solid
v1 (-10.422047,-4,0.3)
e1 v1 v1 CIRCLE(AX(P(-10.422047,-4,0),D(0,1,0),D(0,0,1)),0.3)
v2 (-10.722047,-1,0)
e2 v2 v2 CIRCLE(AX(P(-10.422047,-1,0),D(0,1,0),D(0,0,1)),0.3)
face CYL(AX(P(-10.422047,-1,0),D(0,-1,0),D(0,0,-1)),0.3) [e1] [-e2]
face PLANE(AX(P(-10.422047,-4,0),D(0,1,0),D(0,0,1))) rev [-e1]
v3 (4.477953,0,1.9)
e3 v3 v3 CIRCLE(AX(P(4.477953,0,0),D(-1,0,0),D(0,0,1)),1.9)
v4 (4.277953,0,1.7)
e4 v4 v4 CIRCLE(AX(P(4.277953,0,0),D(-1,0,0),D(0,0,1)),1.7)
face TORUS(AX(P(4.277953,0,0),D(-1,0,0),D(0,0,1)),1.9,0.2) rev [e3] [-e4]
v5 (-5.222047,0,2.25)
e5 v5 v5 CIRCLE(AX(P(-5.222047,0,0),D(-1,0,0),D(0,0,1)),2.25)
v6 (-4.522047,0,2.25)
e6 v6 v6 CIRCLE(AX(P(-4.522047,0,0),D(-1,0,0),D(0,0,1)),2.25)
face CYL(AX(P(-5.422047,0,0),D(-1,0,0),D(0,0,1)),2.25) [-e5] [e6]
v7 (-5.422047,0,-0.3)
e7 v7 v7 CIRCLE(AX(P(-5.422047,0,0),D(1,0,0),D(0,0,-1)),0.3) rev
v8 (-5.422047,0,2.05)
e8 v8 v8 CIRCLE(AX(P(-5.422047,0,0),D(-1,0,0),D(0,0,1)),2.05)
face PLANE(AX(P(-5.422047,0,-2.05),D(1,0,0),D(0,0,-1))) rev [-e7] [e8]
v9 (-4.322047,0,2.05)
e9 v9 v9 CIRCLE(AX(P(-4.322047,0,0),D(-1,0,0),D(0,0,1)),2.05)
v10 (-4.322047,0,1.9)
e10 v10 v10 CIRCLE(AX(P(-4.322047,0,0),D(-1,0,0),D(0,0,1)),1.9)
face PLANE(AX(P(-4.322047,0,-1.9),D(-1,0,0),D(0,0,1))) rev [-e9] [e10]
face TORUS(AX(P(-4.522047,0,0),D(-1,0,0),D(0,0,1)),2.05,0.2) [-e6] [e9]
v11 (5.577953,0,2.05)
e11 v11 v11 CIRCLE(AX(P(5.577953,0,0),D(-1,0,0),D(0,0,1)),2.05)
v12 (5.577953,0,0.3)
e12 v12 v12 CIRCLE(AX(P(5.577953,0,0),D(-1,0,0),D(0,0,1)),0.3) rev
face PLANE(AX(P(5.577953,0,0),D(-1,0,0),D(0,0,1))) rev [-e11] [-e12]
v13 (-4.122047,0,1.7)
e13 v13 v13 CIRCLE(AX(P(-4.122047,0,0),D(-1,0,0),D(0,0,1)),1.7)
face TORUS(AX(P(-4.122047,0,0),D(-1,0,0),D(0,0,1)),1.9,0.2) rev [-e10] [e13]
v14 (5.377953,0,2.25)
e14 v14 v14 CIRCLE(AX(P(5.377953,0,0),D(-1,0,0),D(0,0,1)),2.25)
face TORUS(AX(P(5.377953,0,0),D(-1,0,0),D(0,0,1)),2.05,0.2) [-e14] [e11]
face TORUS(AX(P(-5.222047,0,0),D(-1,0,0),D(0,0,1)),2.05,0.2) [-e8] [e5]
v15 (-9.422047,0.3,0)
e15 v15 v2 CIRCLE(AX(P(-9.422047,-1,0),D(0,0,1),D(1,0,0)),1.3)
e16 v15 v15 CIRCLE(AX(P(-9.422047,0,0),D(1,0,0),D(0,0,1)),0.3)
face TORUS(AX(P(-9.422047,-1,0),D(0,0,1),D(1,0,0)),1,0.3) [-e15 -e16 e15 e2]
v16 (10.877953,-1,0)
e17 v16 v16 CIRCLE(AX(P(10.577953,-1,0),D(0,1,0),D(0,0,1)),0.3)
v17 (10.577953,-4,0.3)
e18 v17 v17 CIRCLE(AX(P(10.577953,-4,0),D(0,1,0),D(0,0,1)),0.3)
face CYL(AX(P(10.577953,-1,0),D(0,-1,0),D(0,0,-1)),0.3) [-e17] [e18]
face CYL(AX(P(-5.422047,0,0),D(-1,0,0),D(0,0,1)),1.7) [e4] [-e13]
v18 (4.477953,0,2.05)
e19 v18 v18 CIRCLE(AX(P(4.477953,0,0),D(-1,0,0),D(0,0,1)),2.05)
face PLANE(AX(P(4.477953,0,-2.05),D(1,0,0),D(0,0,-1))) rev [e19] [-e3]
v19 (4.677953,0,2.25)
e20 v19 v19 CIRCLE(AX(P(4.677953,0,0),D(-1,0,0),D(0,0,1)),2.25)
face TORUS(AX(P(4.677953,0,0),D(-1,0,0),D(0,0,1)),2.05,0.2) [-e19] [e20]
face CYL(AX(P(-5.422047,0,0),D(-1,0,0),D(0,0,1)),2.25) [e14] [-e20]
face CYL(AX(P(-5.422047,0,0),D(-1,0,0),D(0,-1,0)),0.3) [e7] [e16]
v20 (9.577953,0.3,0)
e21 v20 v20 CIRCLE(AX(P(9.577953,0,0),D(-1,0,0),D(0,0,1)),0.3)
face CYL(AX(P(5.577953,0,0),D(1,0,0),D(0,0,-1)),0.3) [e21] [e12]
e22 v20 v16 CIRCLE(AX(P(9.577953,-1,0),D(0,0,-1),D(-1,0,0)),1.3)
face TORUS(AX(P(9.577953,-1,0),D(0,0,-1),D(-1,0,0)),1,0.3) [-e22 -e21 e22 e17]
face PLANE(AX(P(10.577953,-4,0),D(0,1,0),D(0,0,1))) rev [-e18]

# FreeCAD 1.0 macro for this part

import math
import FreeCAD as App
import Part
import Sketcher
Q = App.Units.Quantity

doc = App.newDocument("Part")
params = doc.addObject("Spreadsheet::Sheet", "Params")
for row, (alias, value) in enumerate([
    ("sketch1_radius", "0.2 mm"),
    ("sketch1_width", "11 mm"),
    ("sketch1_width2", "0.7 mm"),
    ("sketch1_height", "2.05 mm"),
    ("sketch1_height2", "0.15 mm"),
    ("revolution_angle", "360 deg"),
    ("sketch2_diameter", "0.6 mm"),
    ("sketch3_radius", "1 mm"),
    ("sketch3_width", "4 mm"),
    ("sketch3_height", "3 mm"),
    ("sketch4_diameter", "0.6 mm"),
    ("sketch5_radius", "1 mm"),
    ("sketch5_width", "4 mm"),
    ("sketch5_height", "3 mm"),
], start=1):
    params.set(f"A{row}", alias)
    params.set(f"B{row}", "=" + value)
    params.setAlias(f"B{row}", alias)

body = doc.addObject("PartDesign::Body", "Body")

# Sketch on XZ plane
sketch1 = body.newObject("Sketcher::SketchObject", "Sketch")
sketch1.AttachmentSupport = (doc.getObject("XZ_Plane"), [""])
sketch1.MapMode = "FlatFace"
sketch1.addGeometry(Part.LineSegment(App.Vector(-5.42, 0, 0), App.Vector(5.58, 0, 0)), False)
sketch1.addGeometry(Part.LineSegment(App.Vector(5.58, 0, 0), App.Vector(5.58, -2.05, 0)), False)
sketch1.addGeometry(Part.ArcOfCircle(Part.Circle(App.Vector(5.38, -2.05, 0), App.Vector(0, 0, 1), 0.2), math.radians(-90), math.radians(0)), False)
sketch1.addGeometry(Part.LineSegment(App.Vector(5.38, -2.25, 0), App.Vector(4.68, -2.25, 0)), False)
sketch1.addGeometry(Part.ArcOfCircle(Part.Circle(App.Vector(4.68, -2.05, 0), App.Vector(0, 0, 1), 0.2), math.radians(-180), math.radians(-90)), False)
sketch1.addGeometry(Part.LineSegment(App.Vector(4.48, -2.05, 0), App.Vector(4.48, -1.9, 0)), False)
sketch1.addGeometry(Part.ArcOfCircle(Part.Circle(App.Vector(4.28, -1.9, 0), App.Vector(0, 0, 1), 0.2), math.radians(0), math.radians(90)), False)
sketch1.addGeometry(Part.LineSegment(App.Vector(4.28, -1.7, 0), App.Vector(-4.12, -1.7, 0)), False)
sketch1.addGeometry(Part.ArcOfCircle(Part.Circle(App.Vector(-4.12, -1.9, 0), App.Vector(0, 0, 1), 0.2), math.radians(90), math.radians(180)), False)
sketch1.addGeometry(Part.LineSegment(App.Vector(-4.32, -1.9, 0), App.Vector(-4.32, -2.05, 0)), False)
sketch1.addGeometry(Part.ArcOfCircle(Part.Circle(App.Vector(-4.52, -2.05, 0), App.Vector(0, 0, 1), 0.2), math.radians(-90), math.radians(0)), False)
sketch1.addGeometry(Part.LineSegment(App.Vector(-4.52, -2.25, 0), App.Vector(-5.22, -2.25, 0)), False)
sketch1.addGeometry(Part.ArcOfCircle(Part.Circle(App.Vector(-5.22, -2.05, 0), App.Vector(0, 0, 1), 0.2), math.radians(-180), math.radians(-90)), False)
sketch1.addGeometry(Part.LineSegment(App.Vector(-5.42, -2.05, 0), App.Vector(-5.42, 0, 0)), False)
sketch1.addConstraint(Sketcher.Constraint("Coincident", 0, 2, 1, 1))
sketch1.addConstraint(Sketcher.Constraint("Tangent", 1, 2, 2, 2))
sketch1.addConstraint(Sketcher.Constraint("Tangent", 2, 1, 3, 1))
sketch1.addConstraint(Sketcher.Constraint("Tangent", 3, 2, 4, 2))
sketch1.addConstraint(Sketcher.Constraint("Tangent", 4, 1, 5, 1))
sketch1.addConstraint(Sketcher.Constraint("Tangent", 5, 2, 6, 1))
sketch1.addConstraint(Sketcher.Constraint("Tangent", 6, 2, 7, 1))
sketch1.addConstraint(Sketcher.Constraint("Tangent", 7, 2, 8, 1))
sketch1.addConstraint(Sketcher.Constraint("Tangent", 8, 2, 9, 1))
sketch1.addConstraint(Sketcher.Constraint("Tangent", 9, 2, 10, 2))
sketch1.addConstraint(Sketcher.Constraint("Tangent", 10, 1, 11, 1))
sketch1.addConstraint(Sketcher.Constraint("Tangent", 11, 2, 12, 2))
sketch1.addConstraint(Sketcher.Constraint("Tangent", 12, 1, 13, 1))
sketch1.addConstraint(Sketcher.Constraint("Coincident", 13, 2, 0, 1))
sketch1.addConstraint(Sketcher.Constraint("Horizontal", 0))
sketch1.addConstraint(Sketcher.Constraint("Vertical", 1))
sketch1.addConstraint(Sketcher.Constraint("Horizontal", 3))
sketch1.addConstraint(Sketcher.Constraint("Vertical", 5))
sketch1.addConstraint(Sketcher.Constraint("Horizontal", 7))
sketch1.addConstraint(Sketcher.Constraint("Vertical", 9))
sketch1.addConstraint(Sketcher.Constraint("Horizontal", 11))
sketch1.addConstraint(Sketcher.Constraint("Vertical", 13))
sketch1.addConstraint(Sketcher.Constraint("Equal", 2, 4))
sketch1.addConstraint(Sketcher.Constraint("Equal", 4, 6))
sketch1.addConstraint(Sketcher.Constraint("Equal", 6, 8))
sketch1.addConstraint(Sketcher.Constraint("Equal", 8, 10))
sketch1.addConstraint(Sketcher.Constraint("Equal", 10, 12))
sketch1.addConstraint(Sketcher.Constraint("PointOnObject", 0, 2, -1))
sketch1.addConstraint(Sketcher.Constraint("Horizontal", 4, 3, 10, 3))
sketch1.addConstraint(Sketcher.Constraint("Equal", 3, 11))
sketch1.addConstraint(Sketcher.Constraint("Radius", 2, Q("0.2 mm")))
sketch1.addConstraint(Sketcher.Constraint("DistanceX", 0, 1, 0, 2, Q("11 mm")))
sketch1.addConstraint(Sketcher.Constraint("DistanceX", 3, 2, 3, 1, Q("0.7 mm")))
sketch1.addConstraint(Sketcher.Constraint("DistanceY", 1, 2, 1, 1, Q("2.05 mm")))
sketch1.addConstraint(Sketcher.Constraint("DistanceY", 5, 1, 5, 2, Q("0.15 mm")))
sketch1.addConstraint(Sketcher.Constraint("DistanceX", -1, 1, 2, 3, Q("5.377953 mm")))
sketch1.setExpression("Constraints[30]", "Params.sketch1_radius")
sketch1.setExpression("Constraints[31]", "Params.sketch1_width")
sketch1.setExpression("Constraints[32]", "Params.sketch1_width2")
sketch1.setExpression("Constraints[33]", "Params.sketch1_height")
sketch1.setExpression("Constraints[34]", "Params.sketch1_height2")
revolution = body.newObject("PartDesign::Revolution", "Revolution")
revolution.Profile = sketch1
revolution.ReferenceAxis = (sketch1, ["H_Axis"])
revolution.setExpression("Angle", "Params.revolution_angle")

# Sketch on YZ plane
sketch2 = body.newObject("Sketcher::SketchObject", "Sketch001")
sketch2.AttachmentSupport = (doc.getObject("YZ_Plane"), [""])
sketch2.MapMode = "FlatFace"
sketch2.AttachmentOffset = App.Placement(App.Vector(0, 0, -5.422047), App.Rotation())
sketch2.addGeometry(Part.Circle(App.Vector(0, 0, 0), App.Vector(0, 0, 1), 0.3), False)
sketch2.addConstraint(Sketcher.Constraint("Coincident", 0, 3, -1, 1))
sketch2.addConstraint(Sketcher.Constraint("Diameter", 0, Q("0.6 mm")))
sketch2.setExpression("Constraints[1]", "Params.sketch2_diameter")

# Sketch on XY plane
sketch3 = body.newObject("Sketcher::SketchObject", "Sketch002")
sketch3.AttachmentSupport = (doc.getObject("XY_Plane"), [""])
sketch3.MapMode = "FlatFace"
sketch3.addGeometry(Part.LineSegment(App.Vector(-5.4, 0, 0), App.Vector(-9.4, 0, 0)), False)
sketch3.addGeometry(Part.ArcOfCircle(Part.Circle(App.Vector(-9.4, -1, 0), App.Vector(0, 0, 1), 1), math.radians(90), math.radians(180)), False)
sketch3.addGeometry(Part.LineSegment(App.Vector(-10.4, -1, 0), App.Vector(-10.4, -4, 0)), False)
sketch3.addConstraint(Sketcher.Constraint("Tangent", 0, 2, 1, 1))
sketch3.addConstraint(Sketcher.Constraint("Tangent", 1, 2, 2, 1))
sketch3.addConstraint(Sketcher.Constraint("Horizontal", 0))
sketch3.addConstraint(Sketcher.Constraint("Vertical", 2))
sketch3.addConstraint(Sketcher.Constraint("PointOnObject", 0, 1, -1))
sketch3.addConstraint(Sketcher.Constraint("Radius", 1, Q("1 mm")))
sketch3.addConstraint(Sketcher.Constraint("DistanceX", 0, 2, 0, 1, Q("4 mm")))
sketch3.addConstraint(Sketcher.Constraint("DistanceY", 2, 2, 2, 1, Q("3 mm")))
sketch3.addConstraint(Sketcher.Constraint("DistanceX", 1, 3, -1, 1, Q("9.422047 mm")))
sketch3.setExpression("Constraints[5]", "Params.sketch3_radius")
sketch3.setExpression("Constraints[6]", "Params.sketch3_width")
sketch3.setExpression("Constraints[7]", "Params.sketch3_height")
doc.recompute()

additivepipe = body.newObject("PartDesign::AdditivePipe", "AdditivePipe")
additivepipe.Profile = sketch2
additivepipe.Spine = (sketch3, ["Edge1", "Edge2", "Edge3"])

# Sketch on YZ plane
sketch4 = body.newObject("Sketcher::SketchObject", "Sketch003")
sketch4.AttachmentSupport = (doc.getObject("YZ_Plane"), [""])
sketch4.MapMode = "FlatFace"
sketch4.AttachmentOffset = App.Placement(App.Vector(0, 0, 5.577953), App.Rotation())
sketch4.addGeometry(Part.Circle(App.Vector(0, 0, 0), App.Vector(0, 0, 1), 0.3), False)
sketch4.addConstraint(Sketcher.Constraint("Coincident", 0, 3, -1, 1))
sketch4.addConstraint(Sketcher.Constraint("Diameter", 0, Q("0.6 mm")))
sketch4.setExpression("Constraints[1]", "Params.sketch4_diameter")

# Sketch on XY plane
sketch5 = body.newObject("Sketcher::SketchObject", "Sketch004")
sketch5.AttachmentSupport = (doc.getObject("XY_Plane"), [""])
sketch5.MapMode = "FlatFace"
sketch5.addGeometry(Part.LineSegment(App.Vector(5.6, 0, 0), App.Vector(9.6, 0, 0)), False)
sketch5.addGeometry(Part.ArcOfCircle(Part.Circle(App.Vector(9.6, -1, 0), App.Vector(0, 0, 1), 1), math.radians(0), math.radians(90)), False)
sketch5.addGeometry(Part.LineSegment(App.Vector(10.6, -1, 0), App.Vector(10.6, -4, 0)), False)
sketch5.addConstraint(Sketcher.Constraint("Tangent", 0, 2, 1, 2))
sketch5.addConstraint(Sketcher.Constraint("Tangent", 1, 1, 2, 1))
sketch5.addConstraint(Sketcher.Constraint("Horizontal", 0))
sketch5.addConstraint(Sketcher.Constraint("Vertical", 2))
sketch5.addConstraint(Sketcher.Constraint("PointOnObject", 0, 1, -1))
sketch5.addConstraint(Sketcher.Constraint("Radius", 1, Q("1 mm")))
sketch5.addConstraint(Sketcher.Constraint("DistanceX", 0, 1, 0, 2, Q("4 mm")))
sketch5.addConstraint(Sketcher.Constraint("DistanceY", 2, 2, 2, 1, Q("3 mm")))
sketch5.addConstraint(Sketcher.Constraint("DistanceX", -1, 1, 1, 3, Q("9.577953 mm")))
sketch5.setExpression("Constraints[5]", "Params.sketch5_radius")
sketch5.setExpression("Constraints[6]", "Params.sketch5_width")
sketch5.setExpression("Constraints[7]", "Params.sketch5_height")
doc.recompute()

additivepipe2 = body.newObject("PartDesign::AdditivePipe", "AdditivePipe001")
additivepipe2.Profile = sketch4
additivepipe2.Spine = (sketch5, ["Edge1", "Edge2", "Edge3"])

doc.recompute()
